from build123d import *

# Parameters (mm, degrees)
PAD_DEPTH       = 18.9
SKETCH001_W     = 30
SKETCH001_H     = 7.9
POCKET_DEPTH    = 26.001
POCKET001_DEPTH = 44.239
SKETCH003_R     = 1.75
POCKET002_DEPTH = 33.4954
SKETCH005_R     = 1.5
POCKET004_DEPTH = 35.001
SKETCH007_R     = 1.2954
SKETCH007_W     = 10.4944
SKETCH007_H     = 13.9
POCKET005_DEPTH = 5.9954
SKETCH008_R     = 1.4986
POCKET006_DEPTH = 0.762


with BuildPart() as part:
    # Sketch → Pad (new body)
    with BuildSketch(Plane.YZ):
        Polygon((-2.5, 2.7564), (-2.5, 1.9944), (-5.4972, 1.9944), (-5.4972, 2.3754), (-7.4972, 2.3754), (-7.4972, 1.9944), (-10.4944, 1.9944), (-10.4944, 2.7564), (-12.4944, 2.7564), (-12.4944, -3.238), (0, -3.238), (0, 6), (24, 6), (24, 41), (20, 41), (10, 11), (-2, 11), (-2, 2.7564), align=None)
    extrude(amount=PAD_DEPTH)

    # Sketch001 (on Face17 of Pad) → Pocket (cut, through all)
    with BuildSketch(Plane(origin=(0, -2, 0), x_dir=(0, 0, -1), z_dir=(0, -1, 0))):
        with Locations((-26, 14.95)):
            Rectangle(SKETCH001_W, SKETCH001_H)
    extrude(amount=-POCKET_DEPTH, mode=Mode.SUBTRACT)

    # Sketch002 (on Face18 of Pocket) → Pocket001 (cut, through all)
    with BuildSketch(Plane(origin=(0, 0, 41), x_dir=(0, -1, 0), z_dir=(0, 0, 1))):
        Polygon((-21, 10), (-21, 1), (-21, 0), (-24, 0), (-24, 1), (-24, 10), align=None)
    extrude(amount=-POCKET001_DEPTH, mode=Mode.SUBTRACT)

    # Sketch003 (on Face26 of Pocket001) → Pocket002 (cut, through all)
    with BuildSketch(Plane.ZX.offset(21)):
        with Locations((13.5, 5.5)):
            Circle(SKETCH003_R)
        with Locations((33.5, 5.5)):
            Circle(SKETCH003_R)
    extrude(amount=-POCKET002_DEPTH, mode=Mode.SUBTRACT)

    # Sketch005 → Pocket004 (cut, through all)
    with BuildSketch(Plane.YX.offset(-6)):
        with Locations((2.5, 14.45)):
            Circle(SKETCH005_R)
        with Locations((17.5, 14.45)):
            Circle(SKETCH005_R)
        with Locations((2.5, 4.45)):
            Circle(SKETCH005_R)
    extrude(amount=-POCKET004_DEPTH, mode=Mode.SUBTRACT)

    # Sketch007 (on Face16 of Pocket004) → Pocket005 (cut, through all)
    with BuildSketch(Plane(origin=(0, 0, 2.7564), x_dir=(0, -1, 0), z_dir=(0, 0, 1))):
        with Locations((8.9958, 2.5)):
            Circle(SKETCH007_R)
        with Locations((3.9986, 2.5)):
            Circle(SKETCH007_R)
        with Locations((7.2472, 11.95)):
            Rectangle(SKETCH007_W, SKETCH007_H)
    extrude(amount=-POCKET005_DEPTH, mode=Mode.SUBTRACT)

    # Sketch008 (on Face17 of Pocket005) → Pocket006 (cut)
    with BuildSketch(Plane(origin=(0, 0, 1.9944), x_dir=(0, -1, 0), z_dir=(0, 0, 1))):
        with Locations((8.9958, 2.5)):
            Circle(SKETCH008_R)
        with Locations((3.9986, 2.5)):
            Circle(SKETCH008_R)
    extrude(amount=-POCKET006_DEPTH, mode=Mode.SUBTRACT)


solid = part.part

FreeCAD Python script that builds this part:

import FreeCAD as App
import Part
import Sketcher
Q = App.Units.Quantity

doc = App.newDocument("Part")
body = doc.addObject("PartDesign::Body", "Body")

sketch1 = body.newObject("Sketcher::SketchObject", "Sketch")
sketch1.AttachmentSupport = (doc.getObject("YZ_Plane"), [""])
sketch1.MapMode = "FlatFace"
sketch1.addGeometry([
    Part.LineSegment(App.Vector(-2.5, 2.76, 0), App.Vector(-2.5, 1.99, 0)),
    Part.LineSegment(App.Vector(-2.5, 1.99, 0), App.Vector(-5.5, 1.99, 0)),
    Part.LineSegment(App.Vector(-5.5, 1.99, 0), App.Vector(-5.5, 2.38, 0)),
    Part.LineSegment(App.Vector(-5.5, 2.38, 0), App.Vector(-7.5, 2.38, 0)),
    Part.LineSegment(App.Vector(-7.5, 2.38, 0), App.Vector(-7.5, 1.99, 0)),
    Part.LineSegment(App.Vector(-7.5, 1.99, 0), App.Vector(-10.49, 1.99, 0)),
    Part.LineSegment(App.Vector(-10.49, 1.99, 0), App.Vector(-10.49, 2.76, 0)),
    Part.LineSegment(App.Vector(-10.49, 2.76, 0), App.Vector(-12.49, 2.76, 0)),
    Part.LineSegment(App.Vector(-12.49, 2.76, 0), App.Vector(-12.49, -3.24, 0)),
    Part.LineSegment(App.Vector(-12.49, -3.24, 0), App.Vector(0, -3.24, 0)),
    Part.LineSegment(App.Vector(0, -3.24, 0), App.Vector(0, 6, 0)),
    Part.LineSegment(App.Vector(0, 6, 0), App.Vector(24, 6, 0)),
    Part.LineSegment(App.Vector(24, 6, 0), App.Vector(24, 41, 0)),
    Part.LineSegment(App.Vector(24, 41, 0), App.Vector(20, 41, 0)),
    Part.LineSegment(App.Vector(20, 41, 0), App.Vector(10, 11, 0)),
    Part.LineSegment(App.Vector(10, 11, 0), App.Vector(-2, 11, 0)),
    Part.LineSegment(App.Vector(-2, 11, 0), App.Vector(-2, 2.76, 0)),
    Part.LineSegment(App.Vector(-2, 2.76, 0), App.Vector(-2.5, 2.76, 0)),
], False)
sketch1.addConstraint([
    Sketcher.Constraint("Coincident", 0, 2, 1, 1),
    Sketcher.Constraint("Coincident", 1, 2, 2, 1),
    Sketcher.Constraint("Coincident", 2, 2, 3, 1),
    Sketcher.Constraint("Coincident", 3, 2, 4, 1),
    Sketcher.Constraint("Coincident", 4, 2, 5, 1),
    Sketcher.Constraint("Coincident", 5, 2, 6, 1),
    Sketcher.Constraint("Coincident", 6, 2, 7, 1),
    Sketcher.Constraint("Coincident", 7, 2, 8, 1),
    Sketcher.Constraint("Coincident", 8, 2, 9, 1),
    Sketcher.Constraint("Coincident", 9, 2, 10, 1),
    Sketcher.Constraint("Coincident", 10, 2, 11, 1),
    Sketcher.Constraint("Coincident", 11, 2, 12, 1),
    Sketcher.Constraint("Coincident", 12, 2, 13, 1),
    Sketcher.Constraint("Coincident", 13, 2, 14, 1),
    Sketcher.Constraint("Coincident", 14, 2, 15, 1),
    Sketcher.Constraint("Coincident", 15, 2, 16, 1),
    Sketcher.Constraint("Coincident", 16, 2, 17, 1),
    Sketcher.Constraint("Coincident", 17, 2, 0, 1),
    Sketcher.Constraint("Vertical", 0),
    Sketcher.Constraint("Horizontal", 1),
    Sketcher.Constraint("Vertical", 2),
    Sketcher.Constraint("Horizontal", 3),
    Sketcher.Constraint("Vertical", 4),
    Sketcher.Constraint("Horizontal", 5),
    Sketcher.Constraint("Vertical", 6),
    Sketcher.Constraint("Horizontal", 7),
    Sketcher.Constraint("Vertical", 8),
    Sketcher.Constraint("Horizontal", 9),
    Sketcher.Constraint("Vertical", 10),
    Sketcher.Constraint("Horizontal", 11),
    Sketcher.Constraint("Vertical", 12),
    Sketcher.Constraint("Horizontal", 13),
    Sketcher.Constraint("Horizontal", 15),
    Sketcher.Constraint("Vertical", 16),
    Sketcher.Constraint("Horizontal", 17),
    Sketcher.Constraint("PointOnObject", 9, 2, -2),
    Sketcher.Constraint("Horizontal", 1, 2, 4, 2),
    Sketcher.Constraint("Horizontal", 7, 2, 16, 2),
    Sketcher.Constraint("Equal", 1, 5),
    Sketcher.Constraint("Equal", 3, 7),
    Sketcher.Constraint("DistanceX", 3, 2, 3, 1, Q("2 mm")),
    Sketcher.Constraint("DistanceX", 11, 1, 11, 2, Q("24 mm")),
    Sketcher.Constraint("DistanceX", 13, 2, 13, 1, Q("4 mm")),
    Sketcher.Constraint("DistanceX", 15, 2, 15, 1, Q("12 mm")),
    Sketcher.Constraint("DistanceY", 12, 1, 12, 2, Q("35 mm")),
    Sketcher.Constraint("DistanceX", 17, 2, 17, 1, Q("0.5 mm")),
    Sketcher.Constraint("DistanceY", -1, 1, 10, 2, Q("6 mm")),
    Sketcher.Constraint("DistanceX", -1, 1, 14, 2, Q("10 mm")),
    Sketcher.Constraint("DistanceY", -1, 1, 14, 2, Q("11 mm")),
    Sketcher.Constraint("DistanceY", 0, 2, 0, 1, Q("0.762 mm")),
    Sketcher.Constraint("DistanceY", 2, 1, 2, 2, Q("0.381 mm")),
    Sketcher.Constraint("DistanceY", 10, 1, 10, 2, Q("9.238 mm")),
    Sketcher.Constraint("DistanceX", 1, 2, 1, 1, Q("2.9972 mm")),
    Sketcher.Constraint("DistanceY", 8, 2, 8, 1, Q("5.9944 mm")),
])
pad1 = body.newObject("PartDesign::Pad", "Pad")
pad1.Profile = sketch1
pad1.Length = 18.9

sketch2 = body.newObject("Sketcher::SketchObject", "Sketch001")
sketch2.AttachmentSupport = (doc.getObject("XZ_Plane"), [""])
sketch2.MapMode = "FlatFace"
sketch2.AttachmentOffset = App.Placement(App.Vector(0, 0, 2), App.Rotation())
sketch2.addGeometry([
    Part.LineSegment(App.Vector(19, 41, 0), App.Vector(11, 41, 0)),
    Part.LineSegment(App.Vector(11, 41, 0), App.Vector(11, 11, 0)),
    Part.LineSegment(App.Vector(11, 11, 0), App.Vector(19, 11, 0)),
    Part.LineSegment(App.Vector(19, 11, 0), App.Vector(19, 41, 0)),
], False)
sketch2.addConstraint([
    Sketcher.Constraint("Coincident", 0, 2, 1, 1),
    Sketcher.Constraint("Coincident", 1, 2, 2, 1),
    Sketcher.Constraint("Coincident", 2, 2, 3, 1),
    Sketcher.Constraint("Coincident", 3, 2, 0, 1),
    Sketcher.Constraint("Horizontal", 0),
    Sketcher.Constraint("Vertical", 1),
    Sketcher.Constraint("Horizontal", 2),
    Sketcher.Constraint("Vertical", 3),
    Sketcher.Constraint("DistanceY", 1, 2, 1, 1, Q("30 mm")),
    Sketcher.Constraint("DistanceX", 0, 2, 0, 1, Q("7.9 mm")),
    Sketcher.Constraint("DistanceX", -1, 1, 0, 2, Q("11 mm")),
    Sketcher.Constraint("DistanceY", -1, 1, 0, 2, Q("41 mm")),
])
pocket1 = body.newObject("PartDesign::Pocket", "Pocket")
pocket1.Profile = sketch2
pocket1.Type = "ThroughAll"

sketch3 = body.newObject("Sketcher::SketchObject", "Sketch002")
sketch3.AttachmentSupport = (doc.getObject("XY_Plane"), [""])
sketch3.MapMode = "FlatFace"
sketch3.AttachmentOffset = App.Placement(App.Vector(0, 0, 41), App.Rotation())
sketch3.addGeometry([
    Part.LineSegment(App.Vector(0, 21, 0), App.Vector(10, 21, 0)),
    Part.LineSegment(App.Vector(10, 21, 0), App.Vector(10, 24, 0)),
    Part.LineSegment(App.Vector(10, 24, 0), App.Vector(0, 24, 0)),
    Part.LineSegment(App.Vector(0, 24, 0), App.Vector(0, 21, 0)),
], False)
sketch3.addConstraint([
    Sketcher.Constraint("Coincident", 0, 2, 1, 1),
    Sketcher.Constraint("Coincident", 1, 2, 2, 1),
    Sketcher.Constraint("Coincident", 2, 2, 3, 1),
    Sketcher.Constraint("Coincident", 3, 2, 0, 1),
    Sketcher.Constraint("Horizontal", 0),
    Sketcher.Constraint("Vertical", 1),
    Sketcher.Constraint("Horizontal", 2),
    Sketcher.Constraint("Vertical", 3),
    Sketcher.Constraint("PointOnObject", 2, 2, -2),
    Sketcher.Constraint("DistanceX", 0, 1, 0, 2, Q("10 mm")),
    Sketcher.Constraint("DistanceY", 1, 1, 1, 2, Q("3 mm")),
    Sketcher.Constraint("DistanceY", -1, 1, 0, 2, Q("21 mm")),
])
pocket2 = body.newObject("PartDesign::Pocket", "Pocket001")
pocket2.Profile = sketch3
pocket2.Type = "ThroughAll"

sketch4 = body.newObject("Sketcher::SketchObject", "Sketch003")
sketch4.AttachmentSupport = (doc.getObject("XZ_Plane"), [""])
sketch4.MapMode = "FlatFace"
sketch4.AttachmentOffset = App.Placement(App.Vector(0, 0, -21), App.Rotation())
sketch4.addGeometry([
    Part.Circle(App.Vector(5.5, 13.5, 0), App.Vector(0, 0, 1), 1.8),
    Part.Circle(App.Vector(5.5, 33.5, 0), App.Vector(0, 0, 1), 1.8),
], False)
sketch4.addConstraint([
    Sketcher.Constraint("Equal", 0, 1),
    Sketcher.Constraint("Vertical", 0, 3, 1, 3),
    Sketcher.Constraint("Diameter", 0, Q("3.5 mm")),
    Sketcher.Constraint("DistanceY", 0, 3, 1, 3, Q("20 mm")),
    Sketcher.Constraint("DistanceX", -1, 1, 0, 3, Q("5.5 mm")),
    Sketcher.Constraint("DistanceY", -1, 1, 0, 3, Q("13.5 mm")),
])
pocket3 = body.newObject("PartDesign::Pocket", "Pocket002")
pocket3.Profile = sketch4
pocket3.Type = "ThroughAll"
pocket3.Reversed = True

sketch5 = body.newObject("Sketcher::SketchObject", "Sketch004")
sketch5.AttachmentSupport = (doc.getObject("XY_Plane"), [""])
sketch5.MapMode = "FlatFace"
sketch5.AttachmentOffset = App.Placement(App.Vector(0, 0, 6), App.Rotation())
sketch5.addGeometry([
    Part.Circle(App.Vector(14.4, 2.5, 0), App.Vector(0, 0, 1), 1.5),
    Part.Circle(App.Vector(14.4, 17.5, 0), App.Vector(0, 0, 1), 1.5),
    Part.Circle(App.Vector(4.5, 2.5, 0), App.Vector(0, 0, 1), 1.5),
], False)
sketch5.addConstraint([
    Sketcher.Constraint("Equal", 0, 1),
    Sketcher.Constraint("Equal", 1, 2),
    Sketcher.Constraint("Horizontal", 0, 3, 2, 3),
    Sketcher.Constraint("Vertical", 0, 3, 1, 3),
    Sketcher.Constraint("Diameter", 0, Q("3 mm")),
    Sketcher.Constraint("DistanceY", 0, 3, 1, 3, Q("15 mm")),
    Sketcher.Constraint("DistanceX", 2, 3, 0, 3, Q("10 mm")),
    Sketcher.Constraint("DistanceY", -1, 1, 0, 3, Q("2.5 mm")),
    Sketcher.Constraint("DistanceX", -1, 1, 0, 3, Q("14.45 mm")),
])
pocket4 = body.newObject("PartDesign::Pocket", "Pocket003")
pocket4.Profile = sketch5
pocket4.Type = "ThroughAll"
pocket4.Reversed = True

sketch6 = body.newObject("Sketcher::SketchObject", "Sketch005")
sketch6.AttachmentSupport = (doc.getObject("XY_Plane"), [""])
sketch6.MapMode = "FlatFace"
sketch6.AttachmentOffset = App.Placement(App.Vector(0, 0, 2.7564), App.Rotation())
sketch6.addGeometry([
    Part.Circle(App.Vector(2.5, -9, 0), App.Vector(0, 0, 1), 1.3),
    Part.Circle(App.Vector(2.5, -4, 0), App.Vector(0, 0, 1), 1.3),
    Part.LineSegment(App.Vector(18.9, -2, 0), App.Vector(5, -2, 0)),
    Part.LineSegment(App.Vector(5, -2, 0), App.Vector(5, -12.5, 0)),
    Part.LineSegment(App.Vector(5, -12.5, 0), App.Vector(18.9, -12.5, 0)),
    Part.LineSegment(App.Vector(18.9, -12.5, 0), App.Vector(18.9, -2, 0)),
], False)
sketch6.addConstraint([
    Sketcher.Constraint("Coincident", 2, 2, 3, 1),
    Sketcher.Constraint("Coincident", 3, 2, 4, 1),
    Sketcher.Constraint("Coincident", 4, 2, 5, 1),
    Sketcher.Constraint("Coincident", 5, 2, 2, 1),
    Sketcher.Constraint("Horizontal", 2),
    Sketcher.Constraint("Vertical", 3),
    Sketcher.Constraint("Horizontal", 4),
    Sketcher.Constraint("Vertical", 5),
    Sketcher.Constraint("Equal", 0, 1),
    Sketcher.Constraint("Vertical", 0, 3, 1, 3),
    Sketcher.Constraint("DistanceX", 2, 2, 2, 1, Q("13.9 mm")),
    Sketcher.Constraint("DistanceX", -1, 1, 2, 2, Q("5 mm")),
    Sketcher.Constraint("DistanceY", 2, 2, -1, 1, Q("2 mm")),
    Sketcher.Constraint("Diameter", 0, Q("2.5908 mm")),
    Sketcher.Constraint("DistanceX", -1, 1, 0, 3, Q("2.5 mm")),
    Sketcher.Constraint("DistanceY", 3, 2, 3, 1, Q("10.4944 mm")),
    Sketcher.Constraint("DistanceY", 0, 3, -1, 1, Q("8.9958 mm")),
    Sketcher.Constraint("DistanceY", 1, 3, -1, 1, Q("3.9986 mm")),
])
pocket5 = body.newObject("PartDesign::Pocket", "Pocket004")
pocket5.Profile = sketch6
pocket5.Type = "ThroughAll"

sketch7 = body.newObject("Sketcher::SketchObject", "Sketch006")
sketch7.AttachmentSupport = (doc.getObject("XY_Plane"), [""])
sketch7.MapMode = "FlatFace"
sketch7.AttachmentOffset = App.Placement(App.Vector(0, 0, 1.9944), App.Rotation())
sketch7.addGeometry([
    Part.Circle(App.Vector(2.5, -9, 0), App.Vector(0, 0, 1), 1.5),
    Part.Circle(App.Vector(2.5, -4, 0), App.Vector(0, 0, 1), 1.5),
], False)
sketch7.addConstraint([
    Sketcher.Constraint("Equal", 0, 1),
    Sketcher.Constraint("Vertical", 0, 3, 1, 3),
    Sketcher.Constraint("Diameter", 0, Q("2.9972 mm")),
    Sketcher.Constraint("DistanceX", -1, 1, 0, 3, Q("2.5 mm")),
    Sketcher.Constraint("DistanceY", 0, 3, -1, 1, Q("8.9958 mm")),
    Sketcher.Constraint("DistanceY", 1, 3, -1, 1, Q("3.9986 mm")),
])
pocket6 = body.newObject("PartDesign::Pocket", "Pocket005")
pocket6.Profile = sketch7
pocket6.Length = 0.762

doc.recompute()
